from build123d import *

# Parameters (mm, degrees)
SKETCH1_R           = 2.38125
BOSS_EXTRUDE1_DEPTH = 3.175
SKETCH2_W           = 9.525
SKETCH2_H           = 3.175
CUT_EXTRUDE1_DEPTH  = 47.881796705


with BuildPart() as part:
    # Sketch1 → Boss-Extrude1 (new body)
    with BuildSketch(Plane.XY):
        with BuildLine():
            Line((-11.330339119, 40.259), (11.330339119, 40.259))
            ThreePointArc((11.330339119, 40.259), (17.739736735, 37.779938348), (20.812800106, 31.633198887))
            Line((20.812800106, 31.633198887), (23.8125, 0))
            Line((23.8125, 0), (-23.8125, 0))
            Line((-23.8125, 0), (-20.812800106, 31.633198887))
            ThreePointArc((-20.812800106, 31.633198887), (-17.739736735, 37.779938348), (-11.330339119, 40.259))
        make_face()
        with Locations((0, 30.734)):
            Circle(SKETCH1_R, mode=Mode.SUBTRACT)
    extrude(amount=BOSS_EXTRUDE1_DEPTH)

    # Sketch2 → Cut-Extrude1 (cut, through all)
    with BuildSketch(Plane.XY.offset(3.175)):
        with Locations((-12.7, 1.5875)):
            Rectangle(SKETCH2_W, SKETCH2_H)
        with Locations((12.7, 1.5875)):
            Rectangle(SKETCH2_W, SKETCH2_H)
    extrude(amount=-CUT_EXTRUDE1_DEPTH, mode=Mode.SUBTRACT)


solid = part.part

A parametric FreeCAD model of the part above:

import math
import FreeCAD as App
import Part
import Sketcher
from FreeCAD import Vector
Q = App.Units.Quantity

doc = App.newDocument("Part")
params = doc.addObject("Spreadsheet::Sheet", "Params")
for row, (alias, value) in enumerate([
    ("sketch1_diameter", "0.1875 in"),
    ("sketch1_radius", "0.375 in"),
    ("sketch1_width", "1.875 in"),
    ("pad1_length", "0.125 in"),
    ("sketch2_width", "0.375 in"),
    ("sketch2_height", "0.125 in"),
], start=1):
    params.set(f"A{row}", alias)
    params.set(f"B{row}", "=" + value)
    params.setAlias(f"B{row}", alias)

body = doc.addObject("PartDesign::Body", "Body")

# Sketch on XY plane
sketch1 = body.newObject("Sketcher::SketchObject", "Sketch")
sketch1.AttachmentSupport = (doc.getObject("XY_Plane"), [""])
sketch1.MapMode = "FlatFace"
sketch1.addGeometry([
    Part.LineSegment(Vector(11.3, 40.3, 0), Vector(-11.3, 40.3, 0)),  # 0
    Part.ArcOfCircle(Part.Circle(Vector(-11.3, 30.7, 0), Vector(0, 0, 1), 9.5), math.radians(90), math.radians(175)),  # 1
    Part.LineSegment(Vector(-20.8, 31.6, 0), Vector(-23.8, 0, 0)),  # 2
    Part.LineSegment(Vector(-23.8, 0, 0), Vector(23.8, 0, 0)),  # 3
    Part.LineSegment(Vector(23.8, 0, 0), Vector(20.8, 31.6, 0)),  # 4
    Part.ArcOfCircle(Part.Circle(Vector(11.3, 30.7, 0), Vector(0, 0, 1), 9.5), math.radians(5), math.radians(90)),  # 5
    Part.Circle(Vector(0, 30.7, 0), Vector(0, 0, 1), 2.4),  # 6
], False)
sketch1.addConstraint([
    Sketcher.Constraint("Tangent", 0, 2, 1, 1),
    Sketcher.Constraint("Tangent", 1, 2, 2, 1),
    Sketcher.Constraint("Coincident", 2, 2, 3, 1),
    Sketcher.Constraint("Coincident", 3, 2, 4, 1),
    Sketcher.Constraint("Tangent", 4, 2, 5, 1),
    Sketcher.Constraint("Tangent", 5, 2, 0, 1),
    Sketcher.Constraint("Horizontal", 0),
    Sketcher.Constraint("Horizontal", 3),
    Sketcher.Constraint("Equal", 1, 5),
    Sketcher.Constraint("Symmetric", 2, 2, 3, 2, -1, 1),
    Sketcher.Constraint("PointOnObject", 6, 3, -2),
    Sketcher.Constraint("Horizontal", 5, 3, 6, 3),
    Sketcher.Constraint("Horizontal", 1, 2, 4, 2),
    Sketcher.Constraint("Diameter", 6, Q("0.1875 in")),
    Sketcher.Constraint("Radius", 1, Q("0.375 in")),
    Sketcher.Constraint("DistanceX", 3, 1, 3, 2, Q("1.875 in")),
    Sketcher.Constraint("DistanceY", -1, 1, 1, 3, Q("1.21 in")),
    Sketcher.Constraint("DistanceX", 0, 2, 0, 1, Q("22.660678 mm")),
])
sketch1.setExpression("Constraints[13]", "Params.sketch1_diameter")
sketch1.setExpression("Constraints[14]", "Params.sketch1_radius")
sketch1.setExpression("Constraints[15]", "Params.sketch1_width")
pad1 = body.newObject("PartDesign::Pad", "Pad")
pad1.Profile = sketch1
pad1.setExpression("Length", "Params.pad1_length")

# Sketch on XY plane
sketch2 = body.newObject("Sketcher::SketchObject", "Sketch001")
sketch2.AttachmentSupport = (doc.getObject("XY_Plane"), [""])
sketch2.MapMode = "FlatFace"
sketch2.AttachmentOffset = App.Placement(Vector(0, 0, 0.125 * 25.4), App.Rotation())
sketch2.addGeometry([
    Part.LineSegment(Vector(-17.5, 3.2, 0), Vector(-17.5, 0, 0)),  # 0
    Part.LineSegment(Vector(-17.5, 0, 0), Vector(-7.9, 0, 0)),  # 1
    Part.LineSegment(Vector(-7.9, 0, 0), Vector(-7.9, 3.2, 0)),  # 2
    Part.LineSegment(Vector(-7.9, 3.2, 0), Vector(-17.5, 3.2, 0)),  # 3
    Part.LineSegment(Vector(7.9, 3.2, 0), Vector(7.9, 0, 0)),  # 4
    Part.LineSegment(Vector(7.9, 0, 0), Vector(17.5, 0, 0)),  # 5
    Part.LineSegment(Vector(17.5, 0, 0), Vector(17.5, 3.2, 0)),  # 6
    Part.LineSegment(Vector(17.5, 3.2, 0), Vector(7.9, 3.2, 0)),  # 7
], False)
sketch2.addConstraint([
    Sketcher.Constraint("Coincident", 0, 2, 1, 1),
    Sketcher.Constraint("Coincident", 1, 2, 2, 1),
    Sketcher.Constraint("Coincident", 2, 2, 3, 1),
    Sketcher.Constraint("Coincident", 3, 2, 0, 1),
    Sketcher.Constraint("Coincident", 4, 2, 5, 1),
    Sketcher.Constraint("Coincident", 5, 2, 6, 1),
    Sketcher.Constraint("Coincident", 6, 2, 7, 1),
    Sketcher.Constraint("Coincident", 7, 2, 4, 1),
    Sketcher.Constraint("Vertical", 0),
    Sketcher.Constraint("Horizontal", 1),
    Sketcher.Constraint("Vertical", 2),
    Sketcher.Constraint("Horizontal", 3),
    Sketcher.Constraint("Vertical", 4),
    Sketcher.Constraint("Horizontal", 5),
    Sketcher.Constraint("Vertical", 6),
    Sketcher.Constraint("Horizontal", 7),
    Sketcher.Constraint("Symmetric", 1, 2, 4, 2, -1, 1),
    Sketcher.Constraint("Symmetric", 0, 2, 5, 2, -2),
    Sketcher.Constraint("Horizontal", 3, 2, 6, 2),
    Sketcher.Constraint("DistanceX", 0, 2, 4, 2, Q("1 in")),
    Sketcher.Constraint("DistanceX", 1, 1, 1, 2, Q("0.375 in")),
    Sketcher.Constraint("DistanceY", 0, 2, 0, 1, Q("0.125 in")),
])
sketch2.setExpression("Constraints[20]", "Params.sketch2_width")
sketch2.setExpression("Constraints[21]", "Params.sketch2_height")
pocket1 = body.newObject("PartDesign::Pocket", "Pocket")
pocket1.Profile = sketch2
pocket1.Type = "ThroughAll"

doc.recompute()
